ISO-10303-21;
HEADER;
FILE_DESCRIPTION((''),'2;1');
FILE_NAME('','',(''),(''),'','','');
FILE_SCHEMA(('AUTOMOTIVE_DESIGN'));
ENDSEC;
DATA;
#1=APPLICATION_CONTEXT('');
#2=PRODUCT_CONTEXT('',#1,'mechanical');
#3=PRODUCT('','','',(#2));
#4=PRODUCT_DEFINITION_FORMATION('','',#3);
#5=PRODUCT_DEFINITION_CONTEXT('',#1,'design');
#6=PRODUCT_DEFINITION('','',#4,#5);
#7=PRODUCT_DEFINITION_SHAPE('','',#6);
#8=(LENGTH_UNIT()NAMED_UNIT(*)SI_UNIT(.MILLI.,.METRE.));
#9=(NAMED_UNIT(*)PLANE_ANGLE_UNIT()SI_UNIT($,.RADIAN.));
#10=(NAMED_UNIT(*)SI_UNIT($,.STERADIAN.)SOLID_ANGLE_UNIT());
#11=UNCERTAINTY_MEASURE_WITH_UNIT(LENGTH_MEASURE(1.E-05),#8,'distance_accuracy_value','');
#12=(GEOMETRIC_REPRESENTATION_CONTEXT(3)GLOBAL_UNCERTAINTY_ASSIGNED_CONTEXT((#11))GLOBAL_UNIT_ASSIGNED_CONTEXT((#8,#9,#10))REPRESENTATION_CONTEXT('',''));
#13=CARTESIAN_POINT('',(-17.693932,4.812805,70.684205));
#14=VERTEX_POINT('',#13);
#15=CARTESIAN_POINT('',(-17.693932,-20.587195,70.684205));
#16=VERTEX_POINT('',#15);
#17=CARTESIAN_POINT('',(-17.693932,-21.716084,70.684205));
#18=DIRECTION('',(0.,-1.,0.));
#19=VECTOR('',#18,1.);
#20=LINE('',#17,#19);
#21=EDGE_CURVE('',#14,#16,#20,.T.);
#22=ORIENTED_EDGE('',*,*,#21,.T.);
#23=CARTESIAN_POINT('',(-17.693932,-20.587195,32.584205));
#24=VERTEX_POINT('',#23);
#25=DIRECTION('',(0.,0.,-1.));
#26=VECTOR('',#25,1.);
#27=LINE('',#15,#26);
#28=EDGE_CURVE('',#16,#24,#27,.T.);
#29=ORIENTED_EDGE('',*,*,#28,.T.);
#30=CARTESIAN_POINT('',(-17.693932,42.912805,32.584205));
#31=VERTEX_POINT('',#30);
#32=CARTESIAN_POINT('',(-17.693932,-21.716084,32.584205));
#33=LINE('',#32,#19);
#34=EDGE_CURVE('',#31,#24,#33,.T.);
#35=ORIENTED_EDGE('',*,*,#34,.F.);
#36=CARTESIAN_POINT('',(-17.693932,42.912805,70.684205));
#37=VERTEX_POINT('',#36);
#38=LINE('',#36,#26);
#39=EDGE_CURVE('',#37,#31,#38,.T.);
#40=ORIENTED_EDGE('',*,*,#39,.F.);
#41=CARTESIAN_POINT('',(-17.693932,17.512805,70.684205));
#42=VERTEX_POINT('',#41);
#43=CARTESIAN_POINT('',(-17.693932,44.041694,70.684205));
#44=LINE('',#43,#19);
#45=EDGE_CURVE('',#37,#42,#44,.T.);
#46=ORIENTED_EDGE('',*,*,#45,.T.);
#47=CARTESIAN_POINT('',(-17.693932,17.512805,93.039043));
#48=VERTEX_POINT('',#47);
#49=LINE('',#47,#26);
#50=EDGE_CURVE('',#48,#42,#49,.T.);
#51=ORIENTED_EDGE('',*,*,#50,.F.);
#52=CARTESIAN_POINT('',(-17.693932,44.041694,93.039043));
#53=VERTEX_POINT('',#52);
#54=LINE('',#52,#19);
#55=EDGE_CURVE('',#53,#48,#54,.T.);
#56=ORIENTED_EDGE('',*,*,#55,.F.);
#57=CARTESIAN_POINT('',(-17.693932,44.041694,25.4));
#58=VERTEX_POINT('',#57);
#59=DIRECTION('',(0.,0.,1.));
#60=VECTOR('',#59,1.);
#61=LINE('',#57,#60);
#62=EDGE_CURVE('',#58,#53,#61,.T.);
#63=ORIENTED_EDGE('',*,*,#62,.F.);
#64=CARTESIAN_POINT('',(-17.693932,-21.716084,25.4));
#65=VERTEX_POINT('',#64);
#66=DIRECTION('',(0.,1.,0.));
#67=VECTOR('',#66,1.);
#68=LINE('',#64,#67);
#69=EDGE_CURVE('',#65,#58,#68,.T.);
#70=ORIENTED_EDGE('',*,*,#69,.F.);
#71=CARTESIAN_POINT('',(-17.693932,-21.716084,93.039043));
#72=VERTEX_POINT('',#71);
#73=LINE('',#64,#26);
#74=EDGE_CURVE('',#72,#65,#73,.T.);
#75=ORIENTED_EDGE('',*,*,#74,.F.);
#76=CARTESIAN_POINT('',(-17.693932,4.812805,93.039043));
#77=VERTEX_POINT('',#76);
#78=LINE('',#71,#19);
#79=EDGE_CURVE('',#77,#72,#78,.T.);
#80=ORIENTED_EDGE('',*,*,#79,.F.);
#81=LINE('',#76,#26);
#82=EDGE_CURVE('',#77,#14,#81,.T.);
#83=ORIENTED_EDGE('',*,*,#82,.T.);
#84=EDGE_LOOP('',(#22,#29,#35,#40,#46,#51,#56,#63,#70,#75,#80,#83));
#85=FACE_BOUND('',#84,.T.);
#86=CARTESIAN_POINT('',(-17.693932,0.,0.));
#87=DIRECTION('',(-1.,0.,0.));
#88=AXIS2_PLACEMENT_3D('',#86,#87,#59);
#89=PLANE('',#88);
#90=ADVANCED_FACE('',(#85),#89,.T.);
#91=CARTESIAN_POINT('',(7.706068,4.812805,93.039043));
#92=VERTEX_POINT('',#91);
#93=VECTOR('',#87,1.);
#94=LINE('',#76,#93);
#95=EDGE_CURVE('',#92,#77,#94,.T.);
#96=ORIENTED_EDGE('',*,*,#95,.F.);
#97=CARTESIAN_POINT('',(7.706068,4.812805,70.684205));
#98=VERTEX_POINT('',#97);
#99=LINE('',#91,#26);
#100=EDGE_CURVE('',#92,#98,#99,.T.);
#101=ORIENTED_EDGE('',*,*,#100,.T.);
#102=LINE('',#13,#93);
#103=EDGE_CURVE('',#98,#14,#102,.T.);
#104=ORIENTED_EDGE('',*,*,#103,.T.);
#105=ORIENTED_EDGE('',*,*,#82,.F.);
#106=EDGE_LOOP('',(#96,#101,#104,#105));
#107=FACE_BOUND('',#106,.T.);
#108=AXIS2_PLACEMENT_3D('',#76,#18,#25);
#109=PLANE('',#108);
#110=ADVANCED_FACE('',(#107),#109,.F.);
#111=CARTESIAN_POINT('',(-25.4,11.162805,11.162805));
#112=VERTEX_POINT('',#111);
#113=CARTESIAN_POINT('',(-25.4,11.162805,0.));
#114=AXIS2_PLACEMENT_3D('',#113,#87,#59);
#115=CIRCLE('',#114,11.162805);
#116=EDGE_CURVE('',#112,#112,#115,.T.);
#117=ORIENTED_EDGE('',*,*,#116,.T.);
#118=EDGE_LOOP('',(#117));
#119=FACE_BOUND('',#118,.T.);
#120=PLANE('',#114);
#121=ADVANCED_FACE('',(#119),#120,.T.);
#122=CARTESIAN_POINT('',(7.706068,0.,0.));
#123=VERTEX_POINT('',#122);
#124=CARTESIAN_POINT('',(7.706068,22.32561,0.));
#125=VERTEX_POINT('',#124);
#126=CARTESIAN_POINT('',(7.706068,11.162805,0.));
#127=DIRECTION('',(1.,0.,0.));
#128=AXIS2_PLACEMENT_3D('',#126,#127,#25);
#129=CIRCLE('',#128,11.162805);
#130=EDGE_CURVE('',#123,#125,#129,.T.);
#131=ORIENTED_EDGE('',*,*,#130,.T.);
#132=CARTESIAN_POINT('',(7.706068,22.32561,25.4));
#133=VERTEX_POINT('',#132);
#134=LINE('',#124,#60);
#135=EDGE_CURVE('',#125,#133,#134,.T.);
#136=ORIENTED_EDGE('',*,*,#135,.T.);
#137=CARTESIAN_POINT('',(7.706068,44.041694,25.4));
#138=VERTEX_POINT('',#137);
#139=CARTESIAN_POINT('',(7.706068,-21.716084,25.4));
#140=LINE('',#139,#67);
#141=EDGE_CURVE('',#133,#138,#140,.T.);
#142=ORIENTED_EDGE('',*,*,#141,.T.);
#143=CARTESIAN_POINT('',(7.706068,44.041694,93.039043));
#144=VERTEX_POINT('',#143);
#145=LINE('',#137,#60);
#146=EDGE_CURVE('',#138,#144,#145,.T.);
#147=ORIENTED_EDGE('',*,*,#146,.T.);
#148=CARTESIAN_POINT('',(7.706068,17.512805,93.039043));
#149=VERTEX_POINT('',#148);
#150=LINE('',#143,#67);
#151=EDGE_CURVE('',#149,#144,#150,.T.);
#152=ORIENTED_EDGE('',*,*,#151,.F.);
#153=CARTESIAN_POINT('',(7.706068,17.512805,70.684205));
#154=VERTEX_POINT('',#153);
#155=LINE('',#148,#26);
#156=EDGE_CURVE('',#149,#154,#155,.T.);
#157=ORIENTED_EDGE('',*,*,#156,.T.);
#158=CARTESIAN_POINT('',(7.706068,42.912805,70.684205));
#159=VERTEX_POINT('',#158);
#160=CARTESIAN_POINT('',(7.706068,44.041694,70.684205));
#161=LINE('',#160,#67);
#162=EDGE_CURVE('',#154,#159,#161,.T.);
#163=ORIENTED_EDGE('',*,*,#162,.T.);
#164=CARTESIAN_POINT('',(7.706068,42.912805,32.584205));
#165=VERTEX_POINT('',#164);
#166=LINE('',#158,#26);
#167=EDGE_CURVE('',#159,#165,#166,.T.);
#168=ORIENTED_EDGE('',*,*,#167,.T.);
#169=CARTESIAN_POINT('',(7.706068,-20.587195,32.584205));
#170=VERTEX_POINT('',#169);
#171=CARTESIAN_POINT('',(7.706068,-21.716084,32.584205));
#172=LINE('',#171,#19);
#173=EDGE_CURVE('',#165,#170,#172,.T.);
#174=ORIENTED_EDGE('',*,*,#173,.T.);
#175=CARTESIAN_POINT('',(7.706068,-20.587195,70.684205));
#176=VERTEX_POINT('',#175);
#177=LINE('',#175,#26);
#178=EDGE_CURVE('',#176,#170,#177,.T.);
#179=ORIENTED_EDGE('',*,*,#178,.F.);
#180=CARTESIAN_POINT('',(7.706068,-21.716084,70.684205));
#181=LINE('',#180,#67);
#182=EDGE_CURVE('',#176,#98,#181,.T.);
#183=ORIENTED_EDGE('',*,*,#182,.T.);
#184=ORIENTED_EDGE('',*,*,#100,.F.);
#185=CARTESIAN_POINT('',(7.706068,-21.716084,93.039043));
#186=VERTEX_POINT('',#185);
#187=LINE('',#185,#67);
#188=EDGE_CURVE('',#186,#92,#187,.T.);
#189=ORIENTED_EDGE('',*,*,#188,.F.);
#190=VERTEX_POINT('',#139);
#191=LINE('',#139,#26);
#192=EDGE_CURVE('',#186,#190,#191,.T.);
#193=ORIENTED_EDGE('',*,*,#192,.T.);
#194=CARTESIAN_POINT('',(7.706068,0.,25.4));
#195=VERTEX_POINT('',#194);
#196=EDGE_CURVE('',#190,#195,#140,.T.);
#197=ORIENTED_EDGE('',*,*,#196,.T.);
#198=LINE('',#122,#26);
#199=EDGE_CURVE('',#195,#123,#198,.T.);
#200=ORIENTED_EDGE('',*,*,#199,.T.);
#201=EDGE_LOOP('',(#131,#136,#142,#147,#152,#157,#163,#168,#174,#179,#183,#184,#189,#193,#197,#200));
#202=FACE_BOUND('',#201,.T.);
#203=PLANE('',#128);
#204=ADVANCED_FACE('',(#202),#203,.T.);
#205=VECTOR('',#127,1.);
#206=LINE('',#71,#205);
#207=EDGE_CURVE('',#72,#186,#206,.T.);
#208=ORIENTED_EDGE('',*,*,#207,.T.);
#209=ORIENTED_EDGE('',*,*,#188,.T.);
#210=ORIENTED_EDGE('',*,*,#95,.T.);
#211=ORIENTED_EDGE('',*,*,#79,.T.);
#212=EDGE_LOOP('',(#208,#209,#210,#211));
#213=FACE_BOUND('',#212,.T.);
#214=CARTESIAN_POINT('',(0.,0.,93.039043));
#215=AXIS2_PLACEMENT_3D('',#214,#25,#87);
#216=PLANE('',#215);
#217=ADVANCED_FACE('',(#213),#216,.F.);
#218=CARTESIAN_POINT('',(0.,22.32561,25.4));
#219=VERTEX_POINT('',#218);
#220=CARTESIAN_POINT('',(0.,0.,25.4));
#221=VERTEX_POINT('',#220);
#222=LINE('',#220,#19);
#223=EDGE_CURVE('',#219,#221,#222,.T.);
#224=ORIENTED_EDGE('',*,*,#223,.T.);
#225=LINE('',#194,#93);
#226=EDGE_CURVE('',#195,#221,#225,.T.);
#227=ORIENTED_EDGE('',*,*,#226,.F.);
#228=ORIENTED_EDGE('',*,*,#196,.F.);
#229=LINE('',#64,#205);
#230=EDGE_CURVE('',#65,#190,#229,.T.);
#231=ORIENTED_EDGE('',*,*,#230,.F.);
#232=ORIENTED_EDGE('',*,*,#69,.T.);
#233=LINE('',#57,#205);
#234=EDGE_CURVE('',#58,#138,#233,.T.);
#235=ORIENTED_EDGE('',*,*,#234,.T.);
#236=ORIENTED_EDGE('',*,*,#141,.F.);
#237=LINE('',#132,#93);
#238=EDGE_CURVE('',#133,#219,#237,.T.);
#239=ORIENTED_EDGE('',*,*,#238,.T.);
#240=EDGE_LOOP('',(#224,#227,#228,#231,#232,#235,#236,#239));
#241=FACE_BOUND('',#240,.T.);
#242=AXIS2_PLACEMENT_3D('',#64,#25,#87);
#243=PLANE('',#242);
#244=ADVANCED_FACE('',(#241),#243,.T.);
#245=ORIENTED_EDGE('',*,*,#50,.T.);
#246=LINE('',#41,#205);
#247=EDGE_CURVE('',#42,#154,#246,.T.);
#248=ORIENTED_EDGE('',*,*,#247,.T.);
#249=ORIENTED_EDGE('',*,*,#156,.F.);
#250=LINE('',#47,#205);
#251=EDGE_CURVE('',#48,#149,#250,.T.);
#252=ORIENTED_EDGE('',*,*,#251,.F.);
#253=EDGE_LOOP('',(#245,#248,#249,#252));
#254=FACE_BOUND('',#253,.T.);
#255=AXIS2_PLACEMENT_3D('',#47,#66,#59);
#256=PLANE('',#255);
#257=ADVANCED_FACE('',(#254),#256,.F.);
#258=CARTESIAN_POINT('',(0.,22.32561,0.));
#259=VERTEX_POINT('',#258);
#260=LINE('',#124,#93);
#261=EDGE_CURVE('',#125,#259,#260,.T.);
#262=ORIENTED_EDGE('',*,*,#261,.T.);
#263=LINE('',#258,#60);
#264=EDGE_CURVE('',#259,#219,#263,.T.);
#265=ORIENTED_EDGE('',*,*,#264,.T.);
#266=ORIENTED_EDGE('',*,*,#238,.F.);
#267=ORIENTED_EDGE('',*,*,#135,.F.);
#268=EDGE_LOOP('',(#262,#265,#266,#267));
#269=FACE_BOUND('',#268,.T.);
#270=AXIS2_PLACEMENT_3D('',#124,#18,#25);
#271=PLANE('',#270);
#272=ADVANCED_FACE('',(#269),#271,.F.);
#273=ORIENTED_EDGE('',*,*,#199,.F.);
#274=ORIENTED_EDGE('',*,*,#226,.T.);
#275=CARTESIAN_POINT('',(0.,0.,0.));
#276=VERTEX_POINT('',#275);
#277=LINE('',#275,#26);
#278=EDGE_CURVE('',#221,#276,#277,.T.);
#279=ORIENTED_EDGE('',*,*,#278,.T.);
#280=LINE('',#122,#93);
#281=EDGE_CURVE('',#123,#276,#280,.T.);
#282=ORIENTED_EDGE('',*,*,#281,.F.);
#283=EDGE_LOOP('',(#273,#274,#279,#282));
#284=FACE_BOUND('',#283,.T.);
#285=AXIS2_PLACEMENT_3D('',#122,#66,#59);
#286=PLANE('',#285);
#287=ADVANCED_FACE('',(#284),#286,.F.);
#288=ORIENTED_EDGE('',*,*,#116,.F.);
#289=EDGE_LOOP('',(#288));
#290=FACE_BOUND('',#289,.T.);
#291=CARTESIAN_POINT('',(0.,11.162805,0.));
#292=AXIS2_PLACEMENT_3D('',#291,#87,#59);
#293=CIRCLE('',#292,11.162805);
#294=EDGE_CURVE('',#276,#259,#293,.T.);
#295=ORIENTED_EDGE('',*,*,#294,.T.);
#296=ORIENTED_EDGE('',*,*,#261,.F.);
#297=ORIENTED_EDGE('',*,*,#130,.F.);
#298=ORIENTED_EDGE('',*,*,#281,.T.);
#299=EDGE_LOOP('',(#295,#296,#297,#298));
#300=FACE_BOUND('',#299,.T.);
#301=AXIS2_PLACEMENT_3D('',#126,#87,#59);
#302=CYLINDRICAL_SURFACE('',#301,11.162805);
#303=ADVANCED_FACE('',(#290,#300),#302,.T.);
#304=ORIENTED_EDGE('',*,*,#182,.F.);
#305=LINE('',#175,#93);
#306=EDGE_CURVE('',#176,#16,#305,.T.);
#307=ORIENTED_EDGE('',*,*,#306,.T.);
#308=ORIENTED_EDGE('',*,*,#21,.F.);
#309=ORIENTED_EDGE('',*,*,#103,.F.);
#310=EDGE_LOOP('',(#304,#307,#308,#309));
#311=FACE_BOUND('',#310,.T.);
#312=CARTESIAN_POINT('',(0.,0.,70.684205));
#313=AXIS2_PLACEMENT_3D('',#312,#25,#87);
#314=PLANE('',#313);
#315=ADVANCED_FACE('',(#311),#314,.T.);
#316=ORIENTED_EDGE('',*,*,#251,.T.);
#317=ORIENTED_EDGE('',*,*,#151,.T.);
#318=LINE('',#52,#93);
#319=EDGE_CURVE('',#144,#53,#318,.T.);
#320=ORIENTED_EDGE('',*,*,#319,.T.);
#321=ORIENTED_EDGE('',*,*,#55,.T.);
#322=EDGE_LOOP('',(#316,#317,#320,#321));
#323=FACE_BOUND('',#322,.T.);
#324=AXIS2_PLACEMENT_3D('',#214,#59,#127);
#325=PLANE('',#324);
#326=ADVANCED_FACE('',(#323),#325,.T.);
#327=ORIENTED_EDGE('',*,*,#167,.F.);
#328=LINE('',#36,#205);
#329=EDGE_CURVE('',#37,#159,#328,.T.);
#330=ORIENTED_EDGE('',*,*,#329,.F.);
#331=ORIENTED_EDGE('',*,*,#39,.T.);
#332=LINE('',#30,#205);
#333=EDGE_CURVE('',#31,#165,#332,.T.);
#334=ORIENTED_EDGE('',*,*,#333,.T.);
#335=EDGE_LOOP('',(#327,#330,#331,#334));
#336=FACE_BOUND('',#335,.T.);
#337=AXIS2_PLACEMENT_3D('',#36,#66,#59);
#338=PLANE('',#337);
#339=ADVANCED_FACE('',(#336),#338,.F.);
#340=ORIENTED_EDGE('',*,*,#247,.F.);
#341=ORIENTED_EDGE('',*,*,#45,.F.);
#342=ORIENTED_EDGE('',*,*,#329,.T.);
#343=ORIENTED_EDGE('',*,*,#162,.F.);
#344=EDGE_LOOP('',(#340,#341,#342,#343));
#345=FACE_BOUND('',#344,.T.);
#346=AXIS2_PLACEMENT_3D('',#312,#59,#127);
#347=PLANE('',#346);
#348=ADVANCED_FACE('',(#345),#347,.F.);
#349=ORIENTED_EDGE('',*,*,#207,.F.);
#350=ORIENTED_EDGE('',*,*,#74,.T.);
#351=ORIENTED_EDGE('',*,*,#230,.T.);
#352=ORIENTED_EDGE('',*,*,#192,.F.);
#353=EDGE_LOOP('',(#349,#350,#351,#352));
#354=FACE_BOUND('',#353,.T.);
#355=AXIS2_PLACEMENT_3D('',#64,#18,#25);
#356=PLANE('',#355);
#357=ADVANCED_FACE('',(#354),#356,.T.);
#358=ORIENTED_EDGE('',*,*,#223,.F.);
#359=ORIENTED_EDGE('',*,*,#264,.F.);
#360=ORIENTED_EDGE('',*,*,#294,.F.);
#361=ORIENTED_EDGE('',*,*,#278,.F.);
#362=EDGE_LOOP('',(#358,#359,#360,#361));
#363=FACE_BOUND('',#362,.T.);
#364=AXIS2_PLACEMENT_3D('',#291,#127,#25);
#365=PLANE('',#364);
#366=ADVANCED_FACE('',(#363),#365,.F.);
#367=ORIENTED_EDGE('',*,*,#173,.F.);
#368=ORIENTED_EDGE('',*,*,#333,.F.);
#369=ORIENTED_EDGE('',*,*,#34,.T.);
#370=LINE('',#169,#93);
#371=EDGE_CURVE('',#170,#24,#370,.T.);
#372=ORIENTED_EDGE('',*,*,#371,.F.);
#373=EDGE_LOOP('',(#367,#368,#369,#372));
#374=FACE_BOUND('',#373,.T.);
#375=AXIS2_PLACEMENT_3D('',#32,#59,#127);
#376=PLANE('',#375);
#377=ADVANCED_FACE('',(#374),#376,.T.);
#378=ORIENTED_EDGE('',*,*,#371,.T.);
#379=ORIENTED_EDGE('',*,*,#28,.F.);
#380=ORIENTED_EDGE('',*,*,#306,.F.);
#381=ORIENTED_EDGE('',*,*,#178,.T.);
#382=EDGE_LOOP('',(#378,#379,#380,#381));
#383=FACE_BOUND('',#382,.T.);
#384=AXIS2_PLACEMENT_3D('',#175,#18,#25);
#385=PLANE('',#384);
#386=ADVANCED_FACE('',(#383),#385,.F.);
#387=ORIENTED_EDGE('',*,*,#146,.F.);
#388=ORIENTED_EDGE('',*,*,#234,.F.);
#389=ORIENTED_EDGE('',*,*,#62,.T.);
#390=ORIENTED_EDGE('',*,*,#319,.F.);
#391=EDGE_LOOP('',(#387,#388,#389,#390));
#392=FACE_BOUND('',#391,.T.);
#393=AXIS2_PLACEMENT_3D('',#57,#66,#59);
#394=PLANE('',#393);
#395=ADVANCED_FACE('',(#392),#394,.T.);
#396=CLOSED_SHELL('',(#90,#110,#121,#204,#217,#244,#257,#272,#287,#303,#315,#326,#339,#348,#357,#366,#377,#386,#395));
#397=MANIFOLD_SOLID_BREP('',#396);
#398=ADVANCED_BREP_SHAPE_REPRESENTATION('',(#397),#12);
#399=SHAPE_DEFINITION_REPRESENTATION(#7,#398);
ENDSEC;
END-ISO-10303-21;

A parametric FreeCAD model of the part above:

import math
import FreeCAD as App
import Part
import Sketcher
from FreeCAD import Vector
Q = App.Units.Quantity


def add_polygon(sketch, points):
    """Adds a closed chain of lines whose ends are joined by coincident constraints."""
    first, n = sketch.GeometryCount, len(points)
    for a, b in zip(points, points[1:] + points[:1]):
        sketch.addGeometry(Part.LineSegment(App.Vector(*a, 0), App.Vector(*b, 0)), False)
    for i in range(n):
        sketch.addConstraint(Sketcher.Constraint("Coincident", first + i, 2, first + (i + 1) % n, 1))

doc = App.newDocument("Part")
body = doc.addObject("PartDesign::Body", "Body")

sketch1 = body.newObject("Sketcher::SketchObject", "Sketch")
sketch1.AttachmentSupport = (doc.getObject("YZ_Plane"), [""])
sketch1.MapMode = "FlatFace"
sketch1.addGeometry([
    Part.LineSegment(Vector(0, 25.4, 0), Vector(0, 0, 0)),
    Part.ArcOfCircle(Part.Circle(Vector(11.162805, 0, 0), Vector(0, 0, 1), 11.162805), math.radians(180), math.radians(360)),
    Part.LineSegment(Vector(22.32561, 0, 0), Vector(22.32561, 25.4, 0)),
    Part.LineSegment(Vector(22.32561, 25.4, 0), Vector(0, 25.4, 0)),
], False)
sketch1.addConstraint([
    Sketcher.Constraint("Tangent", 0, 2, 1, 1),
    Sketcher.Constraint("Tangent", 1, 2, 2, 1),
    Sketcher.Constraint("Coincident", 2, 2, 3, 1),
    Sketcher.Constraint("Coincident", 3, 2, 0, 1),
    Sketcher.Constraint("Vertical", 0),
    Sketcher.Constraint("Vertical", 2),
    Sketcher.Constraint("Horizontal", 3),
    Sketcher.Constraint("Coincident", 0, 2, -1, 1),
    Sketcher.Constraint("DistanceY", 0, 2, 0, 1, Q("1 in")),
    Sketcher.Constraint("Radius", 1, 11.162805),
])
pad1 = body.newObject("PartDesign::Pad", "Pad")
pad1.Profile = sketch1
pad1.Length = 7.706068

sketch2 = body.newObject("Sketcher::SketchObject", "Sketch001")
sketch2.AttachmentSupport = (doc.getObject("YZ_Plane"), [""])
sketch2.MapMode = "FlatFace"
sketch2.AttachmentOffset = App.Placement(Vector(0, 0, -1 * 25.4), App.Rotation())
sketch2.addGeometry(Part.Circle(Vector(11.162805, 0, 0), Vector(0, 0, 1), 11.162805), False)
sketch2.addConstraint([
    Sketcher.Constraint("PointOnObject", 0, 3, -1),
    Sketcher.Constraint("Diameter", 0, 22.32561),
    Sketcher.Constraint("DistanceX", -1, 1, 0, 3, 11.162805),
])
pad2 = body.newObject("PartDesign::Pad", "Pad001")
pad2.Profile = sketch2
pad2.Length = Q("1 in")

sketch3 = body.newObject("Sketcher::SketchObject", "Sketch002")
sketch3.AttachmentSupport = (doc.getObject("YZ_Plane"), [""])
sketch3.MapMode = "FlatFace"
sketch3.AttachmentOffset = App.Placement(Vector(0, 0, 7.706068), App.Rotation())
add_polygon(sketch3, [(-21.716084, 32.584205), (-21.716084, 25.4), (44.041694, 25.4), (44.041694, 32.584205)])
sketch3.addConstraint([
    Sketcher.Constraint("Vertical", 0),
    Sketcher.Constraint("Horizontal", 1),
    Sketcher.Constraint("Vertical", 2),
    Sketcher.Constraint("Horizontal", 3),
    Sketcher.Constraint("DistanceY", -1, 1, 0, 2, Q("1 in")),
    Sketcher.Constraint("DistanceX", 1, 1, 1, 2, 65.757778),
    Sketcher.Constraint("DistanceY", 0, 2, 0, 1, 7.184205),
    Sketcher.Constraint("DistanceX", 0, 2, -1, 1, 21.716084),
])
pad3 = body.newObject("PartDesign::Pad", "Pad002")
pad3.Profile = sketch3
pad3.Length = Q("1 in")
pad3.Reversed = True

sketch4 = body.newObject("Sketcher::SketchObject", "Sketch003")
sketch4.AttachmentSupport = (doc.getObject("XY_Plane"), [""])
sketch4.MapMode = "FlatFace"
sketch4.AttachmentOffset = App.Placement(Vector(0, 0, 32.584205), App.Rotation())
add_polygon(sketch4, [(-17.693932, -20.587195), (-17.693932, -21.716084), (7.706068, -21.716084), (7.706068, -20.587195)])
add_polygon(sketch4, [(-17.693932, 44.041694), (-17.693932, 42.912805), (7.706068, 42.912805), (7.706068, 44.041694)])
sketch4.addConstraint([
    Sketcher.Constraint("Vertical", 0),
    Sketcher.Constraint("Horizontal", 1),
    Sketcher.Constraint("Vertical", 2),
    Sketcher.Constraint("Horizontal", 3),
    Sketcher.Constraint("Vertical", 4),
    Sketcher.Constraint("Horizontal", 5),
    Sketcher.Constraint("Vertical", 6),
    Sketcher.Constraint("Horizontal", 7),
    Sketcher.Constraint("Vertical", 3, 2, 4, 2),
    Sketcher.Constraint("Vertical", 2, 2, 5, 2),
    Sketcher.Constraint("Equal", 2, 4),
    Sketcher.Constraint("DistanceX", 1, 1, 1, 2, Q("1 in")),
    Sketcher.Constraint("DistanceY", 3, 2, 4, 2, Q("2.5 in")),
    Sketcher.Constraint("DistanceY", 0, 2, 0, 1, 1.128889),
    Sketcher.Constraint("DistanceX", 0, 2, -1, 1, 17.693932),
    Sketcher.Constraint("DistanceY", 0, 2, -1, 1, 21.716084),
])
pad4 = body.newObject("PartDesign::Pad", "Pad003")
pad4.Profile = sketch4
pad4.Length = Q("1.5 in")

sketch5 = body.newObject("Sketcher::SketchObject", "Sketch004")
sketch5.AttachmentSupport = (doc.getObject("XY_Plane"), [""])
sketch5.MapMode = "FlatFace"
sketch5.AttachmentOffset = App.Placement(Vector(0, 0, 70.684205), App.Rotation())
add_polygon(sketch5, [(-17.693932, 4.812805), (-17.693932, -21.716084), (7.706068, -21.716084), (7.706068, 4.812805)])
add_polygon(sketch5, [(-17.693932, 44.041694), (-17.693932, 17.512805), (7.706068, 17.512805), (7.706068, 44.041694)])
sketch5.addConstraint([
    Sketcher.Constraint("Vertical", 0),
    Sketcher.Constraint("Horizontal", 1),
    Sketcher.Constraint("Vertical", 2),
    Sketcher.Constraint("Horizontal", 3),
    Sketcher.Constraint("Vertical", 4),
    Sketcher.Constraint("Horizontal", 5),
    Sketcher.Constraint("Vertical", 6),
    Sketcher.Constraint("Horizontal", 7),
    Sketcher.Constraint("Vertical", 3, 2, 4, 2),
    Sketcher.Constraint("Vertical", 2, 2, 5, 2),
    Sketcher.Constraint("Equal", 2, 4),
    Sketcher.Constraint("DistanceX", 1, 1, 1, 2, Q("1 in")),
    Sketcher.Constraint("DistanceY", 3, 2, 4, 2, Q("0.5 in")),
    Sketcher.Constraint("DistanceY", 0, 2, 0, 1, 26.528889),
    Sketcher.Constraint("DistanceX", 0, 2, -1, 1, 17.693932),
    Sketcher.Constraint("DistanceY", 0, 2, -1, 1, 21.716084),
])
pad5 = body.newObject("PartDesign::Pad", "Pad004")
pad5.Profile = sketch5
pad5.Length = 22.354838

doc.recompute()
